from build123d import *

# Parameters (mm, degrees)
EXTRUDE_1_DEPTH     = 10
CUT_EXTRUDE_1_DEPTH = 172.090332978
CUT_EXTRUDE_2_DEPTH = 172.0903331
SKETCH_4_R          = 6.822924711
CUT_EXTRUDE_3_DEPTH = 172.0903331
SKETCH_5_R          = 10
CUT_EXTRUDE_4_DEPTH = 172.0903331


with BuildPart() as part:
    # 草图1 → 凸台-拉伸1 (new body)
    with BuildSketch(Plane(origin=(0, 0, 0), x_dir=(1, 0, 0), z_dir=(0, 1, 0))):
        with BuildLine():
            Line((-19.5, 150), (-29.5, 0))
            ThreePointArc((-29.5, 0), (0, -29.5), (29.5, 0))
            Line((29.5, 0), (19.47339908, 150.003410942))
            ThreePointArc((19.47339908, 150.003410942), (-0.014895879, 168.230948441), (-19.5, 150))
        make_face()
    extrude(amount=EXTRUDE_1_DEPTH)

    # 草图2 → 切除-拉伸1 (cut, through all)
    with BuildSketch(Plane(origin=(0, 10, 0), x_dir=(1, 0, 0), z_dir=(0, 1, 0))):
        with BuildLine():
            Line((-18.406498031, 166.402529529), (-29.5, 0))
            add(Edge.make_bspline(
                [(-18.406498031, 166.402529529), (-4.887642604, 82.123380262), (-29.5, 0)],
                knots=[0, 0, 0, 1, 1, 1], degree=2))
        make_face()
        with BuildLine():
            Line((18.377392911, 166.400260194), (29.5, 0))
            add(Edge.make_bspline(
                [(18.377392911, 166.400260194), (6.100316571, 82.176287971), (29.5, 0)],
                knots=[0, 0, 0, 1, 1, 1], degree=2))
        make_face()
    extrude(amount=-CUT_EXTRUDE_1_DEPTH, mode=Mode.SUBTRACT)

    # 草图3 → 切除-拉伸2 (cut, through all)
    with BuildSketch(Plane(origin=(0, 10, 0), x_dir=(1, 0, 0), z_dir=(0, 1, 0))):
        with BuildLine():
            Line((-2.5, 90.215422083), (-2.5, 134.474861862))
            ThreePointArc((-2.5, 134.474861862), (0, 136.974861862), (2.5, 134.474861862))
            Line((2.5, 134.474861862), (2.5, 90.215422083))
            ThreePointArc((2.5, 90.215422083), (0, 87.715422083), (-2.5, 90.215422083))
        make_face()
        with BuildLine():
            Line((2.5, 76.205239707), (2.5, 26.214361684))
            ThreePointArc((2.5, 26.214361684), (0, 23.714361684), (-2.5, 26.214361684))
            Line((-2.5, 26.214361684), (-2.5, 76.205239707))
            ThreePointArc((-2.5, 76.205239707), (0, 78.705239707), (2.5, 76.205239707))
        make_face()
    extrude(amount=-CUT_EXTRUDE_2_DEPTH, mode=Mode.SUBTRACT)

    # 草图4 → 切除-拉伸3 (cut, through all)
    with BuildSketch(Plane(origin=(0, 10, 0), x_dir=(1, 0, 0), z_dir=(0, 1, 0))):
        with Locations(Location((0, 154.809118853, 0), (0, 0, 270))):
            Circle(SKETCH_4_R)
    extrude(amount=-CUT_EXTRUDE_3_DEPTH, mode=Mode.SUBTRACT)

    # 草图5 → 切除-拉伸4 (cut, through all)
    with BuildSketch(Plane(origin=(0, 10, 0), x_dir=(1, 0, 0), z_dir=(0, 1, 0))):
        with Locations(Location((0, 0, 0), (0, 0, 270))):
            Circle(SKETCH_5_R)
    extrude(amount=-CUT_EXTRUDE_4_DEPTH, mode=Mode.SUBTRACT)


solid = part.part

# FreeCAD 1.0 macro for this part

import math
import FreeCAD as App
import Part
import Sketcher

V = App.Vector

doc = App.newDocument("Part")
body = doc.addObject("PartDesign::Body", "Body")

# Sketch on XZ plane
sketch1 = body.newObject("Sketcher::SketchObject", "Sketch")
sketch1.AttachmentSupport = (doc.getObject("XZ_Plane"), [""])
sketch1.MapMode = "FlatFace"
sketch1.addGeometry([
    Part.LineSegment(V(-20, -150, 0), V(-30, 0, 0)),
    Part.ArcOfCircle(Part.Circle(V(0, 0, 0), V(0, 0, 1), 30), math.radians(0), math.radians(180)),
    Part.LineSegment(V(30, 0, 0), V(19, -150, 0)),
    Part.ArcOfCircle(Part.Circle(V(0, -149, 0), V(0, 0, 1), 20), math.radians(-176), math.radians(-4)),
], False)
sketch1.addConstraint([
    Sketcher.Constraint("Coincident", 0, 2, 1, 2),
    Sketcher.Constraint("Coincident", 1, 1, 2, 1),
    Sketcher.Constraint("Tangent", 2, 2, 3, 2),
    Sketcher.Constraint("Tangent", 3, 1, 0, 1),
    Sketcher.Constraint("Coincident", 1, 3, -1, 1),
    Sketcher.Constraint("PointOnObject", 0, 2, -1),
    Sketcher.Constraint("PointOnObject", 1, 1, -1),
    Sketcher.Constraint("Radius", 1, 29.5),
    Sketcher.Constraint("DistanceY", 3, 1, -1, 1, 150.0),
    Sketcher.Constraint("DistanceX", 0, 2, 3, 1, 10.0),
    Sketcher.Constraint("Radius", 3, 19.530069),
])
pad1 = body.newObject("PartDesign::Pad", "Pad")
pad1.Profile = sketch1
pad1.Length = 10
pad1.Reversed = True

# Sketch on XZ plane
sketch2 = body.newObject("Sketcher::SketchObject", "Sketch001")
sketch2.AttachmentSupport = (doc.getObject("XZ_Plane"), [""])
sketch2.MapMode = "FlatFace"
sketch2.AttachmentOffset = App.Placement(V(0, 0, -10), App.Rotation())
sketch2.addGeometry([
    Part.LineSegment(V(-18.406498, -166.40253, 0), V(-29.5, 0, 0)),
    Part.BSplineCurve([V(-18.406498, -166.40253, 0), V(-4.887643, -82.12338, 0), V(-29.5, 0, 0)], [3, 3], [0, 1], False, 2, [1, 1, 1], False),
    Part.LineSegment(V(29.5, 0, 0), V(18.377393, -166.40026, 0)),
    Part.BSplineCurve([V(18.377393, -166.40026, 0), V(6.100317, -82.176288, 0), V(29.5, 0, 0)], [3, 3], [0, 1], False, 2, [1, 1, 1], False),
], False)
sketch2.addConstraint([
    Sketcher.Constraint("Block", 1),
    Sketcher.Constraint("Block", 3),
    Sketcher.Constraint("Coincident", 0, 1, 1, 1),
    Sketcher.Constraint("Coincident", 1, 2, 0, 2),
    Sketcher.Constraint("Coincident", 2, 1, 3, 2),
    Sketcher.Constraint("Coincident", 3, 1, 2, 2),
])
pocket1 = body.newObject("PartDesign::Pocket", "Pocket")
pocket1.Profile = sketch2
pocket1.Type = "ThroughAll"
pocket1.Reversed = True

# Sketch on XZ plane
sketch3 = body.newObject("Sketcher::SketchObject", "Sketch002")
sketch3.AttachmentSupport = (doc.getObject("XZ_Plane"), [""])
sketch3.MapMode = "FlatFace"
sketch3.AttachmentOffset = App.Placement(V(0, 0, -10), App.Rotation())
sketch3.addGeometry([
    Part.LineSegment(V(-2.5, -134.5, 0), V(-2.5, -90.2, 0)),  # 0
    Part.ArcOfCircle(Part.Circle(V(0, -90.2, 0), V(0, 0, 1), 2.5), math.radians(0), math.radians(180)),  # 1
    Part.LineSegment(V(2.5, -90.2, 0), V(2.5, -134.5, 0)),  # 2
    Part.ArcOfCircle(Part.Circle(V(0, -134.5, 0), V(0, 0, 1), 2.5), math.radians(180), math.radians(360)),  # 3
    Part.LineSegment(V(2.5, -26.2, 0), V(2.5, -76.2, 0)),  # 4
    Part.ArcOfCircle(Part.Circle(V(0, -76.2, 0), V(0, 0, 1), 2.5), math.radians(180), math.radians(360)),  # 5
    Part.LineSegment(V(-2.5, -76.2, 0), V(-2.5, -26.2, 0)),  # 6
    Part.ArcOfCircle(Part.Circle(V(0, -26.2, 0), V(0, 0, 1), 2.5), math.radians(0), math.radians(180)),  # 7
], False)
sketch3.addConstraint([
    Sketcher.Constraint("Tangent", 0, 2, 1, 2),
    Sketcher.Constraint("Tangent", 1, 1, 2, 1),
    Sketcher.Constraint("Tangent", 2, 2, 3, 2),
    Sketcher.Constraint("Tangent", 3, 1, 0, 1),
    Sketcher.Constraint("Tangent", 4, 2, 5, 2),
    Sketcher.Constraint("Tangent", 5, 1, 6, 1),
    Sketcher.Constraint("Tangent", 6, 2, 7, 2),
    Sketcher.Constraint("Tangent", 7, 1, 4, 1),
    Sketcher.Constraint("Vertical", 0),
    Sketcher.Constraint("Vertical", 2),
    Sketcher.Constraint("Vertical", 4),
    Sketcher.Constraint("Vertical", 6),
    Sketcher.Constraint("Equal", 3, 5),
    Sketcher.Constraint("PointOnObject", 1, 3, -2),
    Sketcher.Constraint("PointOnObject", 5, 3, -2),
    Sketcher.Constraint("Radius", 1, 2.5),
    Sketcher.Constraint("DistanceY", 0, 1, 0, 2, 44.25944),
    Sketcher.Constraint("DistanceY", 4, 2, 4, 1, 49.990878),
    Sketcher.Constraint("DistanceY", 3, 3, 7, 3, 108.2605),
    Sketcher.Constraint("DistanceY", 3, 3, -1, 1, 134.474862),
])
pocket2 = body.newObject("PartDesign::Pocket", "Pocket001")
pocket2.Profile = sketch3
pocket2.Type = "ThroughAll"
pocket2.Reversed = True

# Sketch on XZ plane
sketch4 = body.newObject("Sketcher::SketchObject", "Sketch003")
sketch4.AttachmentSupport = (doc.getObject("XZ_Plane"), [""])
sketch4.MapMode = "FlatFace"
sketch4.AttachmentOffset = App.Placement(V(0, 0, -10), App.Rotation())
sketch4.addGeometry(Part.Circle(V(0, -155, 0), V(0, 0, 1), 7), False)
sketch4.addConstraint([
    Sketcher.Constraint("PointOnObject", 0, 3, -2),
    Sketcher.Constraint("Diameter", 0, 13.645849),
    Sketcher.Constraint("DistanceY", 0, 3, -1, 1, 154.809119),
])
pocket3 = body.newObject("PartDesign::Pocket", "Pocket002")
pocket3.Profile = sketch4
pocket3.Type = "ThroughAll"
pocket3.Reversed = True

# Sketch on XZ plane
sketch5 = body.newObject("Sketcher::SketchObject", "Sketch004")
sketch5.AttachmentSupport = (doc.getObject("XZ_Plane"), [""])
sketch5.MapMode = "FlatFace"
sketch5.AttachmentOffset = App.Placement(V(0, 0, -10), App.Rotation())
sketch5.addGeometry(Part.Circle(V(0, 0, 0), V(0, 0, 1), 10), False)
sketch5.addConstraint([
    Sketcher.Constraint("Coincident", 0, 3, -1, 1),
    Sketcher.Constraint("Diameter", 0, 20.0),
])
pocket4 = body.newObject("PartDesign::Pocket", "Pocket003")
pocket4.Profile = sketch5
pocket4.Type = "ThroughAll"
pocket4.Reversed = True

doc.recompute()
